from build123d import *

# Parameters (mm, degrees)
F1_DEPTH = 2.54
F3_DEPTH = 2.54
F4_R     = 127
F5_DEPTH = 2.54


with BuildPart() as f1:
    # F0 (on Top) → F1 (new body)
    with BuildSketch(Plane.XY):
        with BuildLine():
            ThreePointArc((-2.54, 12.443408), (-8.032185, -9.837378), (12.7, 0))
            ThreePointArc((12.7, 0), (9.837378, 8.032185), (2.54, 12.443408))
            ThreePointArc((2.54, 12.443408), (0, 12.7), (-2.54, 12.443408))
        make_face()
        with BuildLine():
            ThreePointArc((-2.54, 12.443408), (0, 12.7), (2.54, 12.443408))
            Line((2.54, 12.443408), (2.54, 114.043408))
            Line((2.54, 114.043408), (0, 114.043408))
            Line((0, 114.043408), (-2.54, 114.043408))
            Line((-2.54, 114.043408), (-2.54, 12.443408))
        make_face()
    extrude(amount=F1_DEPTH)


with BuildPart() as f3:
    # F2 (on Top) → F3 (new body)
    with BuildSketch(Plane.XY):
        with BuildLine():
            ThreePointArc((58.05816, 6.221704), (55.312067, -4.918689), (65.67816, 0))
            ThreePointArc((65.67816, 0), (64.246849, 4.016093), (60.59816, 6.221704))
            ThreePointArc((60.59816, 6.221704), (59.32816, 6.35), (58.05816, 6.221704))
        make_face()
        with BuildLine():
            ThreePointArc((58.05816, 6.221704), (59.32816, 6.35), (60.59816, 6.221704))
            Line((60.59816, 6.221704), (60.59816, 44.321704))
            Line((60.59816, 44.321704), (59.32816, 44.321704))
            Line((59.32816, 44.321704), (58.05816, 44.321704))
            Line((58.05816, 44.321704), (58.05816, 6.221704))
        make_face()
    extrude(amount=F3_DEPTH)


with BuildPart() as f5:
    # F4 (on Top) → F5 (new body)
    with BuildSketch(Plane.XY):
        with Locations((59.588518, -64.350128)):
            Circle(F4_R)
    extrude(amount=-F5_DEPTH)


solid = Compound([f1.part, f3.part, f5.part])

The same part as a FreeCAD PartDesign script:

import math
import FreeCAD as App
import Part
import Sketcher
from FreeCAD import Vector
Q = App.Units.Quantity

doc = App.newDocument("Part")
body = doc.addObject("PartDesign::Body", "Body")

sketch1 = body.newObject("Sketcher::SketchObject", "Sketch")
sketch1.AttachmentSupport = (doc.getObject("XY_Plane"), [""])
sketch1.MapMode = "FlatFace"
sketch1.addGeometry(Part.ArcOfCircle(Part.Circle(Vector(0, 0, 0), Vector(0, 0, 1), 12.7), math.radians(101.536959), math.radians(360)), False)
sketch1.addGeometry(Part.ArcOfCircle(Part.Circle(Vector(0, 0, 0), Vector(0, 0, 1), 12.7), math.radians(-0.000001), math.radians(78.463041)), False)
sketch1.addGeometry(Part.LineSegment(Vector(2.54, 12.443408, 0), Vector(2.54, 114.043408, 0)), False)
sketch1.addGeometry(Part.LineSegment(Vector(2.54, 114.043408, 0), Vector(-2.54, 114.043408, 0)), False)
sketch1.addGeometry(Part.LineSegment(Vector(-2.54, 114.043408, 0), Vector(-2.54, 12.443408, 0)), False)
sketch1.addConstraint(Sketcher.Constraint("Tangent", 0, 2, 1, 1))
sketch1.addConstraint(Sketcher.Constraint("Coincident", 1, 2, 2, 1))
sketch1.addConstraint(Sketcher.Constraint("Coincident", 2, 2, 3, 1))
sketch1.addConstraint(Sketcher.Constraint("Coincident", 3, 2, 4, 1))
sketch1.addConstraint(Sketcher.Constraint("Coincident", 4, 2, 0, 1))
sketch1.addConstraint(Sketcher.Constraint("Vertical", 2))
sketch1.addConstraint(Sketcher.Constraint("Horizontal", 3))
sketch1.addConstraint(Sketcher.Constraint("Vertical", 4))
sketch1.addConstraint(Sketcher.Constraint("Coincident", 0, 3, -1, 1))
sketch1.addConstraint(Sketcher.Constraint("Equal", 0, 1))
sketch1.addConstraint(Sketcher.Constraint("PointOnObject", 0, 2, -1))
sketch1.addConstraint(Sketcher.Constraint("Horizontal", 1, 2, 4, 2))
sketch1.addConstraint(Sketcher.Constraint("Radius", 0, Q("0.5 in")))
sketch1.addConstraint(Sketcher.Constraint("DistanceY", 2, 1, 2, 2, Q("4 in")))
sketch1.addConstraint(Sketcher.Constraint("DistanceX", 3, 2, 3, 1, Q("0.2 in")))
pad1 = body.newObject("PartDesign::Pad", "Pad")
pad1.Profile = sketch1
pad1.Length = Q("0.1 in")
body2 = doc.addObject("PartDesign::Body", "Body001")

sketch2 = body2.newObject("Sketcher::SketchObject", "Sketch001")
sketch2.AttachmentSupport = (doc.getObject("XY_Plane001"), [""])
sketch2.MapMode = "FlatFace"
sketch2.addGeometry(Part.ArcOfCircle(Part.Circle(Vector(59.32816, 0, 0), Vector(0, 0, 1), 6.35), math.radians(101.536957), math.radians(360.000001)), False)
sketch2.addGeometry(Part.ArcOfCircle(Part.Circle(Vector(59.328161, 0.000001, 0), Vector(0, 0, 1), 6.349999), math.radians(-0.000009), math.radians(78.463049)), False)
sketch2.addGeometry(Part.LineSegment(Vector(60.59816, 6.221704, 0), Vector(60.59816, 44.321704, 0)), False)
sketch2.addGeometry(Part.LineSegment(Vector(60.59816, 44.321704, 0), Vector(58.05816, 44.321704, 0)), False)
sketch2.addGeometry(Part.LineSegment(Vector(58.05816, 44.321704, 0), Vector(58.05816, 6.221704, 0)), False)
sketch2.addConstraint(Sketcher.Constraint("Tangent", 0, 2, 1, 1))
sketch2.addConstraint(Sketcher.Constraint("Coincident", 1, 2, 2, 1))
sketch2.addConstraint(Sketcher.Constraint("Coincident", 2, 2, 3, 1))
sketch2.addConstraint(Sketcher.Constraint("Coincident", 3, 2, 4, 1))
sketch2.addConstraint(Sketcher.Constraint("Coincident", 4, 2, 0, 1))
sketch2.addConstraint(Sketcher.Constraint("Vertical", 2))
sketch2.addConstraint(Sketcher.Constraint("Horizontal", 3))
sketch2.addConstraint(Sketcher.Constraint("Vertical", 4))
sketch2.addConstraint(Sketcher.Constraint("Equal", 0, 1))
sketch2.addConstraint(Sketcher.Constraint("PointOnObject", 0, 3, -1))
sketch2.addConstraint(Sketcher.Constraint("PointOnObject", 0, 2, -1))
sketch2.addConstraint(Sketcher.Constraint("Horizontal", 1, 2, 4, 2))
sketch2.addConstraint(Sketcher.Constraint("Radius", 0, Q("0.25 in")))
sketch2.addConstraint(Sketcher.Constraint("DistanceX", 3, 2, 3, 1, Q("0.1 in")))
sketch2.addConstraint(Sketcher.Constraint("DistanceY", 2, 1, 2, 2, Q("1.5 in")))
sketch2.addConstraint(Sketcher.Constraint("DistanceX", -1, 1, 0, 3, Q("59.32816 mm")))
pad2 = body2.newObject("PartDesign::Pad", "Pad001")
pad2.Profile = sketch2
pad2.Length = Q("0.1 in")
body3 = doc.addObject("PartDesign::Body", "Body002")

sketch3 = body3.newObject("Sketcher::SketchObject", "Sketch002")
sketch3.AttachmentSupport = (doc.getObject("XY_Plane002"), [""])
sketch3.MapMode = "FlatFace"
sketch3.addGeometry(Part.Circle(Vector(59.588518, -64.350128, 0), Vector(0, 0, 1), 127), False)
sketch3.addConstraint(Sketcher.Constraint("Diameter", 0, Q("10 in")))
sketch3.addConstraint(Sketcher.Constraint("DistanceY", 0, 3, -1, 1, Q("64.350128 mm")))
sketch3.addConstraint(Sketcher.Constraint("DistanceX", -1, 1, 0, 3, Q("59.588518 mm")))
pad3 = body3.newObject("PartDesign::Pad", "Pad002")
pad3.Profile = sketch3
pad3.Length = Q("0.1 in")
pad3.Reversed = True

doc.recompute()
